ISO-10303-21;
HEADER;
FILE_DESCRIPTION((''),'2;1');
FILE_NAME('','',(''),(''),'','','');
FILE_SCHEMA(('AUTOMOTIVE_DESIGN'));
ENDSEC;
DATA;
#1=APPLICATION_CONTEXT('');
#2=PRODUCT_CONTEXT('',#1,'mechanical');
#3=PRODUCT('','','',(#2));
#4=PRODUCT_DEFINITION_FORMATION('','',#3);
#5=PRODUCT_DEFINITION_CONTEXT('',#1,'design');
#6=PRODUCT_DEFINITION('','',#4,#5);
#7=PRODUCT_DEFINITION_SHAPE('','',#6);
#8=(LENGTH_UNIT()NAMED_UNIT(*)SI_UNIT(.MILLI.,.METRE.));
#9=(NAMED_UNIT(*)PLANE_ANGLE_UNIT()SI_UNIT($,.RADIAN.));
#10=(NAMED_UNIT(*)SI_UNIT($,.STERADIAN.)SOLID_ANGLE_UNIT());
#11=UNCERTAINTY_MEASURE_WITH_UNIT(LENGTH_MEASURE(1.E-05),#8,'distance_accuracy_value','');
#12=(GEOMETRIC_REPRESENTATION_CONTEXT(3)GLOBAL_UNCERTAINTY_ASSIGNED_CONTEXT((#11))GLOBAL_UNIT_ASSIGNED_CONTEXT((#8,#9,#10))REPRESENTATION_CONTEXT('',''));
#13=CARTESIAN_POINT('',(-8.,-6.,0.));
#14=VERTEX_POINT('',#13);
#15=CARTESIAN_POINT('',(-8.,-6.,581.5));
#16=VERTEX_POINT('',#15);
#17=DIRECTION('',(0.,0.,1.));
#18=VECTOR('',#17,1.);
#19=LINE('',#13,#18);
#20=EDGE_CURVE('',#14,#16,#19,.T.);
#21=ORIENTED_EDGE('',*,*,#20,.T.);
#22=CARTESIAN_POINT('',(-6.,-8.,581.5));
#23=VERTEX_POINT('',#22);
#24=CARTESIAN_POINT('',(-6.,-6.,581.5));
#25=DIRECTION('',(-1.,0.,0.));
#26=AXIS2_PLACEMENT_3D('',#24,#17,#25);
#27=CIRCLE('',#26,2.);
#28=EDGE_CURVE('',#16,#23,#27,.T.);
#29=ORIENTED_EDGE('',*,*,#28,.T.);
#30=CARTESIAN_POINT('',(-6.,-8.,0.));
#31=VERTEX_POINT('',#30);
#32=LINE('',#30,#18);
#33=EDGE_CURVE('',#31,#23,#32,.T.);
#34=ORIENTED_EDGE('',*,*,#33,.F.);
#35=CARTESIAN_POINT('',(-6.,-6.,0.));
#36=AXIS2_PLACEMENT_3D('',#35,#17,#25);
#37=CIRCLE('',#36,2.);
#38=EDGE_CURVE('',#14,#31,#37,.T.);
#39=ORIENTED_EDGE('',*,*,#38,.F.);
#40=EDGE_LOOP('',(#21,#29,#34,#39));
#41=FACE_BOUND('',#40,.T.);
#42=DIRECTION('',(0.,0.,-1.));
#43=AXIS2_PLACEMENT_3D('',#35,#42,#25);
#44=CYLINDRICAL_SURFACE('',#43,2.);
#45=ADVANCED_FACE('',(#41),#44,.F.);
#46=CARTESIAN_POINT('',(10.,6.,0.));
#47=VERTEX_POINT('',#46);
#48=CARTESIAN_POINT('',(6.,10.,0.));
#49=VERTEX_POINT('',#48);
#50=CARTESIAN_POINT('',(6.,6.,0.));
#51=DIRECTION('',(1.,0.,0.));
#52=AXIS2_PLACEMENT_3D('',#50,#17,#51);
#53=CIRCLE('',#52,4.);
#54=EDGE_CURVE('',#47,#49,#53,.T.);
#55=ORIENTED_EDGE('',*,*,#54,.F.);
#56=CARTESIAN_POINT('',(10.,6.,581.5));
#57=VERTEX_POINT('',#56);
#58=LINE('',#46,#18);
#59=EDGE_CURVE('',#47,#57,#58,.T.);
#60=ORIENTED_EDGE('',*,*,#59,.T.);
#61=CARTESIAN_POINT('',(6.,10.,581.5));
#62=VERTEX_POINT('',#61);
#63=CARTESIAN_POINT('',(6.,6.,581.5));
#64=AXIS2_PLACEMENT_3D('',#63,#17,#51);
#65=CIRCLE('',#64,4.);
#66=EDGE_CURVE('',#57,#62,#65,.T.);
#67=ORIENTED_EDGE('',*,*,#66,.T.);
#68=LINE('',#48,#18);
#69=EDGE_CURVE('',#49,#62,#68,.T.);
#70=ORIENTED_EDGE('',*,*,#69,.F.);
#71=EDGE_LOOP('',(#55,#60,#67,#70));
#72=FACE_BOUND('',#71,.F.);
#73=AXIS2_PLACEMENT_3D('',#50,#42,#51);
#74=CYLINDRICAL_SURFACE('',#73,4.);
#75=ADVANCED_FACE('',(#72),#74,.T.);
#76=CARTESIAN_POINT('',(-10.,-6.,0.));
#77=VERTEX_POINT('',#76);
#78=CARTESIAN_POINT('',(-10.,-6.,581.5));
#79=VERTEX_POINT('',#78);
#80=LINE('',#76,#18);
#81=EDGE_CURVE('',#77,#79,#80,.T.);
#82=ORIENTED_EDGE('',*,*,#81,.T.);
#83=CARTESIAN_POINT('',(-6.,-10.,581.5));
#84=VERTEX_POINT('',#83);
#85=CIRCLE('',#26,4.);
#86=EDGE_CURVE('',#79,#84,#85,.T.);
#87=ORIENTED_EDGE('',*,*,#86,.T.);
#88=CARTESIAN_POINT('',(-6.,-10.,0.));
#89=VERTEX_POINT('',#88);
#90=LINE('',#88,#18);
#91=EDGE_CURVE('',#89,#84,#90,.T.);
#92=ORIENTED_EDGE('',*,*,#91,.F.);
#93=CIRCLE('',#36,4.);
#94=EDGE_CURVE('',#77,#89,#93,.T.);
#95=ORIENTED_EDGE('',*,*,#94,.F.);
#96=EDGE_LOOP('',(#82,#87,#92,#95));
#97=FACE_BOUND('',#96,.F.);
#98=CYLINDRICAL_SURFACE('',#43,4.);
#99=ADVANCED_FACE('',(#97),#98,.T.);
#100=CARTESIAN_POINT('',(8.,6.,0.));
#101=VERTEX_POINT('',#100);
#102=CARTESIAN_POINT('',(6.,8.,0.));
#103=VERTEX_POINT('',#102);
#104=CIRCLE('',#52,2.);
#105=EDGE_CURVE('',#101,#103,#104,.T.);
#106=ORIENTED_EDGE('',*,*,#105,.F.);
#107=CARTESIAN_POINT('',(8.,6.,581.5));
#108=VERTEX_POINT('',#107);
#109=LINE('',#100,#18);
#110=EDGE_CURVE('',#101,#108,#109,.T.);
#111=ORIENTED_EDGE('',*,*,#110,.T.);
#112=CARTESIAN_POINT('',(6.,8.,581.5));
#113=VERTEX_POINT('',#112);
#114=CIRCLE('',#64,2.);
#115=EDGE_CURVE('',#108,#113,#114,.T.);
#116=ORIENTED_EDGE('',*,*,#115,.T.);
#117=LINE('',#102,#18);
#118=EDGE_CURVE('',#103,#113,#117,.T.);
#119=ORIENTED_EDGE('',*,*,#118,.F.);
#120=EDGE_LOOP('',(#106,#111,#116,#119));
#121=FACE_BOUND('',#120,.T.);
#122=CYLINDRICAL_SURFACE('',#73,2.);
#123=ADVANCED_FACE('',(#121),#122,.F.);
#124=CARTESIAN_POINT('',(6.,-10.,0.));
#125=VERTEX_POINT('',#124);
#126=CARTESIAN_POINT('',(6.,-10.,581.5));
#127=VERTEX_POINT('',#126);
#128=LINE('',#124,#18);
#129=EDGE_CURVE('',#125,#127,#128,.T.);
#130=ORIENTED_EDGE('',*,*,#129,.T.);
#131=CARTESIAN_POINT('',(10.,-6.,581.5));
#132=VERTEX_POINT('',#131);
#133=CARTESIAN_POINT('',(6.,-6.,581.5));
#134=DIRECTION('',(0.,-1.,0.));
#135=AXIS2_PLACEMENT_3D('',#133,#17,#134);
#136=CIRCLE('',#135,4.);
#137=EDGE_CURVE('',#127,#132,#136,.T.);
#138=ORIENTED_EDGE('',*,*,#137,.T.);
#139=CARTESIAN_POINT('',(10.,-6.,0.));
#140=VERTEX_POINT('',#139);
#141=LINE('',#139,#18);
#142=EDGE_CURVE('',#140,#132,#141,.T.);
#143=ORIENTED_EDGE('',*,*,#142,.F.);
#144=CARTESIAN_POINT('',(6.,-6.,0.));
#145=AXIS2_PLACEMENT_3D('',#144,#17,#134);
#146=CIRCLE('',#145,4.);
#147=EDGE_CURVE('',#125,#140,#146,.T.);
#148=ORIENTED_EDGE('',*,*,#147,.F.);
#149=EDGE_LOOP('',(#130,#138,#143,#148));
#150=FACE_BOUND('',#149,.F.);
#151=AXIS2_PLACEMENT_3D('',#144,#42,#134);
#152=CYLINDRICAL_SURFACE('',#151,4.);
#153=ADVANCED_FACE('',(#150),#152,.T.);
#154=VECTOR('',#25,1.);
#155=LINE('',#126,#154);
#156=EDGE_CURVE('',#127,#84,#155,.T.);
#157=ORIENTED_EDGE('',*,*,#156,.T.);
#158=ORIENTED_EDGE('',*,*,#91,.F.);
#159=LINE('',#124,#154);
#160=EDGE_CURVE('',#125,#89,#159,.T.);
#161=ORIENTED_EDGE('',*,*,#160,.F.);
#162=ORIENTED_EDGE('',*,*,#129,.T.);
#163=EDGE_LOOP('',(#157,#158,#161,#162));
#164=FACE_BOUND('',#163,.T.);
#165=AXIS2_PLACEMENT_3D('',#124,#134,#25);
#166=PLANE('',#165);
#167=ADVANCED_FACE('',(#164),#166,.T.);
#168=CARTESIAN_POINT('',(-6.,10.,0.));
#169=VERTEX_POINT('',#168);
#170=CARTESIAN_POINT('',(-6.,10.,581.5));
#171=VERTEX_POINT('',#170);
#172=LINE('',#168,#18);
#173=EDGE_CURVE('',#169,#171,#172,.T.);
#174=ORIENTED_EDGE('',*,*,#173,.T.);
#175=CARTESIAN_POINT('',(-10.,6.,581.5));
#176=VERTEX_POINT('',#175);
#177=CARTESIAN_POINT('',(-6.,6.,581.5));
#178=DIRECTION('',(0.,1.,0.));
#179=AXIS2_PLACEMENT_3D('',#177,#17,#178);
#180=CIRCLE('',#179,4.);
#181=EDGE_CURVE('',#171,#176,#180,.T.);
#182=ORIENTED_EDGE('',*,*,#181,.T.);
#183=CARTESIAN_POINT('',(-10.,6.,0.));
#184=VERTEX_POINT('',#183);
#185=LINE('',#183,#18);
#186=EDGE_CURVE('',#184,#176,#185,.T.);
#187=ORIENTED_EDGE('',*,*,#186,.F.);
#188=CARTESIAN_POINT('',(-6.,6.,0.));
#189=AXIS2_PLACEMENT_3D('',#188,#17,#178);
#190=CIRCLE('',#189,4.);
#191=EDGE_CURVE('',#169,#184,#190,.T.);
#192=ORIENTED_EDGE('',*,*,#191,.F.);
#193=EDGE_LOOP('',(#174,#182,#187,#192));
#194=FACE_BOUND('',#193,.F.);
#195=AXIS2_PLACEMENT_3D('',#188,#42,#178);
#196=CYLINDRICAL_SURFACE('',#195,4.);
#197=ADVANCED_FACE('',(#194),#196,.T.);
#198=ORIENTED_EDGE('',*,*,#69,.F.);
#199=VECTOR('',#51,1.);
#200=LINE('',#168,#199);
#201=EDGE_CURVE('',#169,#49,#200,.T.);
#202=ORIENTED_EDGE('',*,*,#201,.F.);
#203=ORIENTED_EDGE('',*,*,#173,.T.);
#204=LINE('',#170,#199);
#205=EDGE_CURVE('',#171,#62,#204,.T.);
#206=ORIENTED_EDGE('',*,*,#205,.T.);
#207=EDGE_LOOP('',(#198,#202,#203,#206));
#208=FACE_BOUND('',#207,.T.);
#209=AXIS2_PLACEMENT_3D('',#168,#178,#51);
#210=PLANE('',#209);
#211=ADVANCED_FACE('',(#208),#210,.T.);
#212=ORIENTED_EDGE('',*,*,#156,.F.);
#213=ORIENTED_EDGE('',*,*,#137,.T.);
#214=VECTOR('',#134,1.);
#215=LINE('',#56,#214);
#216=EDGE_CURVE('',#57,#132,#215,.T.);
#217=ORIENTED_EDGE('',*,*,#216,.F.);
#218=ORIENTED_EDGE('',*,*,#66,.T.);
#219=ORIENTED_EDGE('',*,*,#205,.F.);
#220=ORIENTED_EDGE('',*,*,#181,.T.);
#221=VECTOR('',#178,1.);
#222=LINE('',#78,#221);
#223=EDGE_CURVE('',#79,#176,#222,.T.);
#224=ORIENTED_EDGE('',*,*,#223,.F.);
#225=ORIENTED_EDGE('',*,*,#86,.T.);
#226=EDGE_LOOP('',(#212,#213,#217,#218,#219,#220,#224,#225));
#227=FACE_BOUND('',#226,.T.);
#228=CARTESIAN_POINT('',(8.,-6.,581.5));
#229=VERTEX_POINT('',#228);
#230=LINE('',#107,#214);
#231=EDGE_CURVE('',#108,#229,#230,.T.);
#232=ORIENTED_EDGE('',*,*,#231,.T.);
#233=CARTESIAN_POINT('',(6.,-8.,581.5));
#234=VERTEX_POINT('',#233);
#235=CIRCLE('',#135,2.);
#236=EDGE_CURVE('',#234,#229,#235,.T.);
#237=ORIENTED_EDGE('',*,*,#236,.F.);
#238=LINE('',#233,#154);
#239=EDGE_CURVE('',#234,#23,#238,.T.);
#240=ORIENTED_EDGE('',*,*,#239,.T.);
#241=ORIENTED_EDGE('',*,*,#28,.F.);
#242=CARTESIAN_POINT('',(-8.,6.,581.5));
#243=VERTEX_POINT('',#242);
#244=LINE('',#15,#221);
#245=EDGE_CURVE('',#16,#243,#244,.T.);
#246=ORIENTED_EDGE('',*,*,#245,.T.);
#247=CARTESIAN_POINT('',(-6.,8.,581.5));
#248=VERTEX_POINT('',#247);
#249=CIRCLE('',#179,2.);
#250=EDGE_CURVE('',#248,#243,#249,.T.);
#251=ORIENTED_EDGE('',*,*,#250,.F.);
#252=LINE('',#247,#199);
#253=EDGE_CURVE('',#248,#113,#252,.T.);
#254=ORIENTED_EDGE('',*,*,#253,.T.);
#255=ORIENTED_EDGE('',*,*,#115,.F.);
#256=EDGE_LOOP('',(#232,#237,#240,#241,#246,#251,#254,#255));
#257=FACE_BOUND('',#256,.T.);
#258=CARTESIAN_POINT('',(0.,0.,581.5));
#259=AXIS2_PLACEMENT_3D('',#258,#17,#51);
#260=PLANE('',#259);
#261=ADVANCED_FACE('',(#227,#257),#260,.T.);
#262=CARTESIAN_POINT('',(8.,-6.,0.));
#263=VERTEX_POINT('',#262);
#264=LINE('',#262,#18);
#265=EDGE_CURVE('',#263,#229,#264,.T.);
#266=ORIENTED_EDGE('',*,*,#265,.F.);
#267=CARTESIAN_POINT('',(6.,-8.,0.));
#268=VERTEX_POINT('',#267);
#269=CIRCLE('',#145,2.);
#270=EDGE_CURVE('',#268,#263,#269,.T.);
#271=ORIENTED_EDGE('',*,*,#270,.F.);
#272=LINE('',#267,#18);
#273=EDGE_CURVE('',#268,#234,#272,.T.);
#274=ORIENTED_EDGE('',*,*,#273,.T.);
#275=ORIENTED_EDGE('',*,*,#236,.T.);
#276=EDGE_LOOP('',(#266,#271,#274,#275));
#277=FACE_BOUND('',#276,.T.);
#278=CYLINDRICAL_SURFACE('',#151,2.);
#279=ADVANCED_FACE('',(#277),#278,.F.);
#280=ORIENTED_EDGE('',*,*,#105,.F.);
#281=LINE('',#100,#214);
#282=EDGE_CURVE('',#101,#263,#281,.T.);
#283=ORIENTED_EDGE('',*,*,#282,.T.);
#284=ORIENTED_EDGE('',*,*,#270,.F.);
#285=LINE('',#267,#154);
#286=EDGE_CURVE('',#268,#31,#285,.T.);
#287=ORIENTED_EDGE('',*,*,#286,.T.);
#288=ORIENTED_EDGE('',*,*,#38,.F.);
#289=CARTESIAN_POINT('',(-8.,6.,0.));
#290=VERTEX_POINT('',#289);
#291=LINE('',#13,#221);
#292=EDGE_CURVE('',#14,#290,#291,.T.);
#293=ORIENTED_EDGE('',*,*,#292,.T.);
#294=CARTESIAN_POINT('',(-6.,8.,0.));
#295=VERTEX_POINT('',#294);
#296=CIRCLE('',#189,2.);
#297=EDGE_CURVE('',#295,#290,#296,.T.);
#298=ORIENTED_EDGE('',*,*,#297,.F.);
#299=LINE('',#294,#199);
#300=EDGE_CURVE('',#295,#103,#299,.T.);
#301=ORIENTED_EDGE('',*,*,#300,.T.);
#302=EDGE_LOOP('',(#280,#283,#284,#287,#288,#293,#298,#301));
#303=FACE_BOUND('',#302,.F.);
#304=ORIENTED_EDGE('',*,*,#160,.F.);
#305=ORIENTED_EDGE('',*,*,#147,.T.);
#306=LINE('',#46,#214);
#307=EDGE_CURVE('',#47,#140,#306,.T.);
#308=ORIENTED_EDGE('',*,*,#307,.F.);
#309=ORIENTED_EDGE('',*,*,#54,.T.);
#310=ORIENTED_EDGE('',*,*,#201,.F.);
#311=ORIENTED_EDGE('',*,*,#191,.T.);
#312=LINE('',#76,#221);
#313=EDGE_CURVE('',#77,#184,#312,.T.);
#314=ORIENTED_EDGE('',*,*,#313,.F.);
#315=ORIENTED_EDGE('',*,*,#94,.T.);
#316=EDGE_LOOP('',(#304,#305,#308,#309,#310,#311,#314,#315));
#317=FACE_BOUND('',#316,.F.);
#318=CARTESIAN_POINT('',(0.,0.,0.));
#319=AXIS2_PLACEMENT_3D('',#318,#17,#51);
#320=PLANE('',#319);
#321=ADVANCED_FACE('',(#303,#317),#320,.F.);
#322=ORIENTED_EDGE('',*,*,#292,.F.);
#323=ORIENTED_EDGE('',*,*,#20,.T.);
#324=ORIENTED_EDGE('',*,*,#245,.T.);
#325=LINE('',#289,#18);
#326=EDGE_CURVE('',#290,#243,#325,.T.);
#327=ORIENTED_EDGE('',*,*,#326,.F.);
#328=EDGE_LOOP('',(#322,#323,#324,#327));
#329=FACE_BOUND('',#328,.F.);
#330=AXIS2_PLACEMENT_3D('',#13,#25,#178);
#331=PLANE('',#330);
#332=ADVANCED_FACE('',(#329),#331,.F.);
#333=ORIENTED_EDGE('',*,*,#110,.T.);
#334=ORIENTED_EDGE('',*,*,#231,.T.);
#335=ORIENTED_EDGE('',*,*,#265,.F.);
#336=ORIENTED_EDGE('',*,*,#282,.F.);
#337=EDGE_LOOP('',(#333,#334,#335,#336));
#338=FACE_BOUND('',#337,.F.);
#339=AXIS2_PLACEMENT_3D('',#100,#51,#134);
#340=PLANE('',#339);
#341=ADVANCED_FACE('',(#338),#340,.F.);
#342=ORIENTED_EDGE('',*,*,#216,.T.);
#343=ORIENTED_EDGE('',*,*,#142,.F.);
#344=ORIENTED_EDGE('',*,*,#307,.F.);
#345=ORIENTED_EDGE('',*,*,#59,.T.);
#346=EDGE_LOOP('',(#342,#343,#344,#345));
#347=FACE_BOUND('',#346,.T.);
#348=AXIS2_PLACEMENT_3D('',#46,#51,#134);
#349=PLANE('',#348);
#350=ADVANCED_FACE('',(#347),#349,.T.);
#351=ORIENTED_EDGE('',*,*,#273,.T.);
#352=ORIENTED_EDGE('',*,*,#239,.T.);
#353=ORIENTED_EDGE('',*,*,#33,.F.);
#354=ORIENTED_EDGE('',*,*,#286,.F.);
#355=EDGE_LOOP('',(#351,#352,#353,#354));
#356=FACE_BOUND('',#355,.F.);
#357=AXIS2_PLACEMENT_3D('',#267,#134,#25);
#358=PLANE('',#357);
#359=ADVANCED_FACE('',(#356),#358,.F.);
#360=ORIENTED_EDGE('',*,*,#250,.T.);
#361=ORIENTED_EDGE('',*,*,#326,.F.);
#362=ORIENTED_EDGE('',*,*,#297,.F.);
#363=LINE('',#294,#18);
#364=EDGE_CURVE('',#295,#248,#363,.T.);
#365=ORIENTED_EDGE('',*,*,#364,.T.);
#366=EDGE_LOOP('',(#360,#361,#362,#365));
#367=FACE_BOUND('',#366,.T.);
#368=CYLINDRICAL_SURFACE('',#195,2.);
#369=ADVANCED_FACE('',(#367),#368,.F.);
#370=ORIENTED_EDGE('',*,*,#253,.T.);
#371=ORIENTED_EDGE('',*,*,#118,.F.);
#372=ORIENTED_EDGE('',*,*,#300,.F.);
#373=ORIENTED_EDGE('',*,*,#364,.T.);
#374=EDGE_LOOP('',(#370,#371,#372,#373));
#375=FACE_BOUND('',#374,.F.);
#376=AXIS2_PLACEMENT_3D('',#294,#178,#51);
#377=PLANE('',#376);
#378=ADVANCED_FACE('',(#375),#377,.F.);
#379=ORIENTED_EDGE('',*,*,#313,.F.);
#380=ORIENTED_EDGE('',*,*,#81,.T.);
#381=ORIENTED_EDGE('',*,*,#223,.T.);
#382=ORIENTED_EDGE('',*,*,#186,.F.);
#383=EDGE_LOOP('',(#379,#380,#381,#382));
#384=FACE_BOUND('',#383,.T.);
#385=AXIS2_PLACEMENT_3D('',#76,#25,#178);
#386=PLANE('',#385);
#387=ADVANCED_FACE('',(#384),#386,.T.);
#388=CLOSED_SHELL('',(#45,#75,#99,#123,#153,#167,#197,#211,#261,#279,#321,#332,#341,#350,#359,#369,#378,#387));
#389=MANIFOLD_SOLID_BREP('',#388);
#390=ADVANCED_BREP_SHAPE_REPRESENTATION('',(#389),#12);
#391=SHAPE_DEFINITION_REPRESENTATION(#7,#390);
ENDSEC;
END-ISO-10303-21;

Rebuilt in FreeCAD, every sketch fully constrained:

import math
import FreeCAD as App
import Part
import Sketcher

V = App.Vector
Q = App.Units.Quantity

doc = App.newDocument("Part")
body = doc.addObject("PartDesign::Body", "Body")

# Sketch on XY plane
sketch1 = body.newObject("Sketcher::SketchObject", "Sketch")
sketch1.AttachmentSupport = (doc.getObject("XY_Plane"), [""])
sketch1.MapMode = "FlatFace"
sketch1.addGeometry([
    Part.LineSegment(V(-10, 6, 0), V(-10, -6, 0)),  # 0
    Part.ArcOfCircle(Part.Circle(V(-6, -6, 0), V(0, 0, 1), 4), math.radians(180), math.radians(270)),  # 1
    Part.LineSegment(V(-6, -10, 0), V(6, -10, 0)),  # 2
    Part.ArcOfCircle(Part.Circle(V(6, -6, 0), V(0, 0, 1), 4), math.radians(-90), math.radians(0)),  # 3
    Part.LineSegment(V(10, -6, 0), V(10, 6, 0)),  # 4
    Part.ArcOfCircle(Part.Circle(V(6, 6, 0), V(0, 0, 1), 4), math.radians(0), math.radians(90)),  # 5
    Part.LineSegment(V(6, 10, 0), V(-6, 10, 0)),  # 6
    Part.ArcOfCircle(Part.Circle(V(-6, 6, 0), V(0, 0, 1), 4), math.radians(90), math.radians(180)),  # 7
    Part.ArcOfCircle(Part.Circle(V(-6, 6, 0), V(0, 0, 1), 2), math.radians(90), math.radians(180)),  # 8
    Part.LineSegment(V(-6, 8, 0), V(6, 8, 0)),  # 9
    Part.ArcOfCircle(Part.Circle(V(6, 6, 0), V(0, 0, 1), 2), math.radians(0), math.radians(90)),  # 10
    Part.LineSegment(V(8, 6, 0), V(8, -6, 0)),  # 11
    Part.ArcOfCircle(Part.Circle(V(6, -6, 0), V(0, 0, 1), 2), math.radians(-90), math.radians(0)),  # 12
    Part.LineSegment(V(6, -8, 0), V(-6, -8, 0)),  # 13
    Part.ArcOfCircle(Part.Circle(V(-6, -6, 0), V(0, 0, 1), 2), math.radians(180), math.radians(270)),  # 14
    Part.LineSegment(V(-8, -6, 0), V(-8, 6, 0)),  # 15
], False)
sketch1.addConstraint([
    Sketcher.Constraint("Tangent", 0, 2, 1, 1),
    Sketcher.Constraint("Tangent", 1, 2, 2, 1),
    Sketcher.Constraint("Tangent", 2, 2, 3, 1),
    Sketcher.Constraint("Tangent", 3, 2, 4, 1),
    Sketcher.Constraint("Tangent", 4, 2, 5, 1),
    Sketcher.Constraint("Tangent", 5, 2, 6, 1),
    Sketcher.Constraint("Tangent", 6, 2, 7, 1),
    Sketcher.Constraint("Tangent", 7, 2, 0, 1),
    Sketcher.Constraint("Tangent", 8, 1, 9, 1),
    Sketcher.Constraint("Tangent", 9, 2, 10, 2),
    Sketcher.Constraint("Tangent", 10, 1, 11, 1),
    Sketcher.Constraint("Tangent", 11, 2, 12, 2),
    Sketcher.Constraint("Tangent", 12, 1, 13, 1),
    Sketcher.Constraint("Tangent", 13, 2, 14, 2),
    Sketcher.Constraint("Tangent", 14, 1, 15, 1),
    Sketcher.Constraint("Tangent", 15, 2, 8, 2),
    Sketcher.Constraint("Vertical", 0),
    Sketcher.Constraint("Horizontal", 2),
    Sketcher.Constraint("Vertical", 4),
    Sketcher.Constraint("Horizontal", 6),
    Sketcher.Constraint("Horizontal", 9),
    Sketcher.Constraint("Vertical", 11),
    Sketcher.Constraint("Horizontal", 13),
    Sketcher.Constraint("Vertical", 15),
    Sketcher.Constraint("Coincident", 8, 3, 7, 3),
    Sketcher.Constraint("Coincident", 10, 3, 5, 3),
    Sketcher.Constraint("Coincident", 12, 3, 3, 3),
    Sketcher.Constraint("Equal", 1, 3),
    Sketcher.Constraint("Equal", 3, 5),
    Sketcher.Constraint("Equal", 5, 7),
    Sketcher.Constraint("Equal", 12, 14),
    Sketcher.Constraint("Symmetric", 1, 3, 5, 3, -1, 1),
    Sketcher.Constraint("Equal", 13, 0),
    Sketcher.Constraint("Radius", 1, Q("4 mm")),
    Sketcher.Constraint("Radius", 8, Q("2 mm")),
    Sketcher.Constraint("DistanceX", 0, 2, -1, 1, Q("10 mm")),
])
pad1 = body.newObject("PartDesign::Pad", "Pad")
pad1.Profile = sketch1
pad1.Length = 581.5

doc.recompute()
